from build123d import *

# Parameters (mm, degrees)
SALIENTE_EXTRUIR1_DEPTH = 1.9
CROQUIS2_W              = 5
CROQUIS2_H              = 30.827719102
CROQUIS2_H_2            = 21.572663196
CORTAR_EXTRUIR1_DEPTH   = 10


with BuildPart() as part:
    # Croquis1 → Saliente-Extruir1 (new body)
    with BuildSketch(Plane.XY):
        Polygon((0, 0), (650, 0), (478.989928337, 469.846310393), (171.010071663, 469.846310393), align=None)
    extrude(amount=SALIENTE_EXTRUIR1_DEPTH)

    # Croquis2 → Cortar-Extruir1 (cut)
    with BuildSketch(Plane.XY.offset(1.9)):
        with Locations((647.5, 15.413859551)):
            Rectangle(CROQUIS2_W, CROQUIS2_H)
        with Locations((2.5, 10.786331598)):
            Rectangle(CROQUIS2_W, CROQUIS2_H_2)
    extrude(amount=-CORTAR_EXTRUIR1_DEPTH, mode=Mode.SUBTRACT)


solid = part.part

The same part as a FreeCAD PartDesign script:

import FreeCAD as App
import Part
import Sketcher
from FreeCAD import Vector
Q = App.Units.Quantity


def add_polygon(sketch, points):
    """Adds a closed chain of lines whose ends are joined by coincident constraints."""
    first, n = sketch.GeometryCount, len(points)
    for a, b in zip(points, points[1:] + points[:1]):
        sketch.addGeometry(Part.LineSegment(App.Vector(*a, 0), App.Vector(*b, 0)), False)
    for i in range(n):
        sketch.addConstraint(Sketcher.Constraint("Coincident", first + i, 2, first + (i + 1) % n, 1))

doc = App.newDocument("Part")
body = doc.addObject("PartDesign::Body", "Body")

sketch1 = doc.addObject("Sketcher::SketchObject", "Sketch")
body.addObject(sketch1)
sketch1.AttachmentSupport = (doc.XY_Plane, [""])
sketch1.MapMode = "FlatFace"
add_polygon(sketch1, [(0, 0), (650, 0), (478.989928, 469.84631), (171.010072, 469.84631)])
sketch1.addConstraint(Sketcher.Constraint("Horizontal", 0))
sketch1.addConstraint(Sketcher.Constraint("Horizontal", 2))
sketch1.addConstraint(Sketcher.Constraint("Coincident", 3, 2, -1, 1))
sketch1.addConstraint(Sketcher.Constraint("Equal", 1, 3))
sketch1.addConstraint(Sketcher.Constraint("DistanceX", 0, 1, 0, 2, Q("650 mm")))
sketch1.addConstraint(Sketcher.Constraint("Angle", 1, Q("110 deg")))
sketch1.addConstraint(Sketcher.Constraint("Distance", 1, Q("500 mm")))
pad1 = doc.addObject("PartDesign::Pad", "Pad")
body.addObject(pad1)
pad1.Profile = sketch1
pad1.Length = 1.9

sketch2 = doc.addObject("Sketcher::SketchObject", "Sketch001")
body.addObject(sketch2)
sketch2.AttachmentSupport = (doc.XY_Plane, [""])
sketch2.MapMode = "FlatFace"
sketch2.AttachmentOffset = App.Placement(Vector(0, 0, 1.9), App.Rotation())
add_polygon(sketch2, [(645, 30.827719), (645, 0), (650, 0), (650, 30.827719)])
add_polygon(sketch2, [(0, 21.572663), (0, 0), (5, 0), (5, 21.572663)])
sketch2.addConstraint(Sketcher.Constraint("Vertical", 0))
sketch2.addConstraint(Sketcher.Constraint("Horizontal", 1))
sketch2.addConstraint(Sketcher.Constraint("Vertical", 2))
sketch2.addConstraint(Sketcher.Constraint("Horizontal", 3))
sketch2.addConstraint(Sketcher.Constraint("Vertical", 4))
sketch2.addConstraint(Sketcher.Constraint("Horizontal", 5))
sketch2.addConstraint(Sketcher.Constraint("Vertical", 6))
sketch2.addConstraint(Sketcher.Constraint("Horizontal", 7))
sketch2.addConstraint(Sketcher.Constraint("Coincident", 4, 2, -1, 1))
sketch2.addConstraint(Sketcher.Constraint("PointOnObject", 0, 2, -1))
sketch2.addConstraint(Sketcher.Constraint("Equal", 3, 5))
sketch2.addConstraint(Sketcher.Constraint("DistanceX", 1, 1, 1, 2, Q("5 mm")))
sketch2.addConstraint(Sketcher.Constraint("DistanceX", -1, 1, 0, 2, Q("645 mm")))
sketch2.addConstraint(Sketcher.Constraint("DistanceY", 0, 2, 0, 1, Q("30.827719 mm")))
sketch2.addConstraint(Sketcher.Constraint("DistanceY", 4, 2, 4, 1, Q("21.572663 mm")))
pocket1 = doc.addObject("PartDesign::Pocket", "Pocket")
body.addObject(pocket1)
pocket1.Profile = sketch2
pocket1.Length = 10

doc.recompute()
